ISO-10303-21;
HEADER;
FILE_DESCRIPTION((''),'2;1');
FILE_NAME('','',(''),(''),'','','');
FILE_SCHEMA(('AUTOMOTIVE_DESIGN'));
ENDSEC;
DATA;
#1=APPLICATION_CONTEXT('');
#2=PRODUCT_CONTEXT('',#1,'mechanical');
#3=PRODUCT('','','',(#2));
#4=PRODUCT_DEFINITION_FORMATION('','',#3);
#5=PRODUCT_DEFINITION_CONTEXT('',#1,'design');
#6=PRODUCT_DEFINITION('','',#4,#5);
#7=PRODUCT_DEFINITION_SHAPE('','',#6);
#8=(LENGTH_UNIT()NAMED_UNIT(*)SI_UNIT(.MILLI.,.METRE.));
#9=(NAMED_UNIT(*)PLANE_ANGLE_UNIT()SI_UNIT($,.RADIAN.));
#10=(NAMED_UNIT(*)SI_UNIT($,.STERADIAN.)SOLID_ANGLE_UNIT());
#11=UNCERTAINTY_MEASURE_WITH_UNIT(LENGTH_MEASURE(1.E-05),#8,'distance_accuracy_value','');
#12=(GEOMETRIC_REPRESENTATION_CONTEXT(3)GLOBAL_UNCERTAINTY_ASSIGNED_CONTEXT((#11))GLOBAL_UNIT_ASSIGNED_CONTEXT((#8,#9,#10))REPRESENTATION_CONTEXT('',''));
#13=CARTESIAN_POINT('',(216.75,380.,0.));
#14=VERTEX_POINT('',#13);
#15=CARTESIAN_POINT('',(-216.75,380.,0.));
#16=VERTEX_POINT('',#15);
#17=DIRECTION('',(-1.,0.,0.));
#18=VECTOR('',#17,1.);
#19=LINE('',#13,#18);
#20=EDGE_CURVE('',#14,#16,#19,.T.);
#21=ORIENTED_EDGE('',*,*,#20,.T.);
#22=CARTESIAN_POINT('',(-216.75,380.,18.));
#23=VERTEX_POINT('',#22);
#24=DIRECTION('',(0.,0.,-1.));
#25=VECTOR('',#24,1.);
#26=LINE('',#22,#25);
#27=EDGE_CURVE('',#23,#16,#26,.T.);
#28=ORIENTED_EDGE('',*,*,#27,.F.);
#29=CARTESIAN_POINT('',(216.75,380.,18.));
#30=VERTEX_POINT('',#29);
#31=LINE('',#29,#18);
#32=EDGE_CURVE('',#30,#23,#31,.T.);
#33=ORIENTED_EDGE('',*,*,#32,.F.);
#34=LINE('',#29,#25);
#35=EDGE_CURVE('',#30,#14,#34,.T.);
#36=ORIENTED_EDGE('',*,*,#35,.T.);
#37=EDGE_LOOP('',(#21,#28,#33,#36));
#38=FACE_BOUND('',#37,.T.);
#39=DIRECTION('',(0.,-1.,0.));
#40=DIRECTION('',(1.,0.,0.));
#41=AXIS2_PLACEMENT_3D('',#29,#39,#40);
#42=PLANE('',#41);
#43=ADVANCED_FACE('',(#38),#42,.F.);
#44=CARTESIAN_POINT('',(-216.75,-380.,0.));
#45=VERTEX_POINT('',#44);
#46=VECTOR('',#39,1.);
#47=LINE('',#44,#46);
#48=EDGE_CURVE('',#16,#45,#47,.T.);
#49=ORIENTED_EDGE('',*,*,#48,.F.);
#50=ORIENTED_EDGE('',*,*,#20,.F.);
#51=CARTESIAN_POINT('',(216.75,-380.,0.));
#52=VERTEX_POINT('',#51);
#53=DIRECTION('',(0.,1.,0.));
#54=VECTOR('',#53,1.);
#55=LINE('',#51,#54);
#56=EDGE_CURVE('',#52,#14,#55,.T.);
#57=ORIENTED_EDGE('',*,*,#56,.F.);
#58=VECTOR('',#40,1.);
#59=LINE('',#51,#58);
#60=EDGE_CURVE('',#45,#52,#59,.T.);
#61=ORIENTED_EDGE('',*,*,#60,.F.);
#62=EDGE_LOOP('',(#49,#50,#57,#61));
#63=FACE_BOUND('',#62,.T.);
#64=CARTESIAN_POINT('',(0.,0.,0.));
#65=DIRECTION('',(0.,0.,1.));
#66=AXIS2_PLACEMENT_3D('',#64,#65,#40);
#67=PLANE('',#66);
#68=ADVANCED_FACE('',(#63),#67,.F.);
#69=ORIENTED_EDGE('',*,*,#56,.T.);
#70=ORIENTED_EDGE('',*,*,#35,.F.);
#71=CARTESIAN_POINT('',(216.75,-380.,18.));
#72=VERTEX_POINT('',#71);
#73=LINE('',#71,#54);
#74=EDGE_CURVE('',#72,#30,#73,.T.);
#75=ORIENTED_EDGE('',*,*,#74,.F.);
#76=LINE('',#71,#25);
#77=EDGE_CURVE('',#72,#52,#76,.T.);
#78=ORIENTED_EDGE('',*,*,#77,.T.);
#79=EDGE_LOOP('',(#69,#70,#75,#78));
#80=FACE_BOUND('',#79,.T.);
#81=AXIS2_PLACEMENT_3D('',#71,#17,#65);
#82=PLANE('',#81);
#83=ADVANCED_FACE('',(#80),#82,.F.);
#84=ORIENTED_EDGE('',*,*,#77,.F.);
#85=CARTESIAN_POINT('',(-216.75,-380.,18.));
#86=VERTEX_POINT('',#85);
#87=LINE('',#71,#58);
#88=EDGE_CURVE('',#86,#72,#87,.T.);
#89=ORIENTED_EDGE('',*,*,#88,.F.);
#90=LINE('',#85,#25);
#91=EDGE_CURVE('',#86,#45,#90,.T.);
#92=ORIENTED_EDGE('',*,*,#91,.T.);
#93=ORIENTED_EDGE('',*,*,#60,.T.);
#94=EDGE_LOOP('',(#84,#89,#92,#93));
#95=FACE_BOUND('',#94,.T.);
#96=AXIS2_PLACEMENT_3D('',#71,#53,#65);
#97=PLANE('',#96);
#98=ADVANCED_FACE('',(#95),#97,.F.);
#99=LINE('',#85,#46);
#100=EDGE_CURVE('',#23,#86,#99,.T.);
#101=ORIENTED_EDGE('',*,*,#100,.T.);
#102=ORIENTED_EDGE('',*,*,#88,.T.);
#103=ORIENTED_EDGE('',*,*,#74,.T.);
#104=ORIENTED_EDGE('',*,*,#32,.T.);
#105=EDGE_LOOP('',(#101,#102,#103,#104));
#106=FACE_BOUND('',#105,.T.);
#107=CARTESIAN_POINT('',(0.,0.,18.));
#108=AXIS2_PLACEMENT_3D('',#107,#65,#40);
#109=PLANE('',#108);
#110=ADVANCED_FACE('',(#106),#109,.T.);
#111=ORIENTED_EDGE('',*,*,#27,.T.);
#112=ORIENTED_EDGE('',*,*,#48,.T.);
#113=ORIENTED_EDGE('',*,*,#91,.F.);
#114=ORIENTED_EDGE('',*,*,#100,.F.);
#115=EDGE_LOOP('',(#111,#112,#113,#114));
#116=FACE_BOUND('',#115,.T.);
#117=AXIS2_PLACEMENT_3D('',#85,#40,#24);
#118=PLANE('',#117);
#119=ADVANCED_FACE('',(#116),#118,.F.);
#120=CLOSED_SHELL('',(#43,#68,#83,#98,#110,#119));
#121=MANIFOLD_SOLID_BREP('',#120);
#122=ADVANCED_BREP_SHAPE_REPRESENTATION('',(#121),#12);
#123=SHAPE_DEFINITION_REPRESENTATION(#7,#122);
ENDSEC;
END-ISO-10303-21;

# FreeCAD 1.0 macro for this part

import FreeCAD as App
import Part
import Sketcher
from FreeCAD import Vector

doc = App.newDocument("Part")
body = doc.addObject("PartDesign::Body", "Body")

# Sketch on XY plane
sketch1 = body.newObject("Sketcher::SketchObject", "Sketch")
sketch1.AttachmentSupport = (doc.getObject("XY_Plane"), [""])
sketch1.MapMode = "FlatFace"
sketch1.addGeometry([
    Part.LineSegment(Vector(-217, 380, 0), Vector(-217, -380, 0)),
    Part.LineSegment(Vector(-217, -380, 0), Vector(217, -380, 0)),
    Part.LineSegment(Vector(217, -380, 0), Vector(217, 380, 0)),
    Part.LineSegment(Vector(217, 380, 0), Vector(-217, 380, 0)),
], False)
sketch1.addConstraint([
    Sketcher.Constraint("Coincident", 0, 2, 1, 1),
    Sketcher.Constraint("Coincident", 1, 2, 2, 1),
    Sketcher.Constraint("Coincident", 2, 2, 3, 1),
    Sketcher.Constraint("Coincident", 3, 2, 0, 1),
    Sketcher.Constraint("Vertical", 0),
    Sketcher.Constraint("Horizontal", 1),
    Sketcher.Constraint("Vertical", 2),
    Sketcher.Constraint("Horizontal", 3),
    Sketcher.Constraint("Symmetric", 0, 2, 2, 2, -1, 1),
    Sketcher.Constraint("DistanceY", 0, 2, 0, 1, 760.0),
    Sketcher.Constraint("DistanceX", 1, 1, 1, 2, 433.5),
])
pad1 = body.newObject("PartDesign::Pad", "Pad")
pad1.Profile = sketch1
pad1.Length = 18

doc.recompute()
